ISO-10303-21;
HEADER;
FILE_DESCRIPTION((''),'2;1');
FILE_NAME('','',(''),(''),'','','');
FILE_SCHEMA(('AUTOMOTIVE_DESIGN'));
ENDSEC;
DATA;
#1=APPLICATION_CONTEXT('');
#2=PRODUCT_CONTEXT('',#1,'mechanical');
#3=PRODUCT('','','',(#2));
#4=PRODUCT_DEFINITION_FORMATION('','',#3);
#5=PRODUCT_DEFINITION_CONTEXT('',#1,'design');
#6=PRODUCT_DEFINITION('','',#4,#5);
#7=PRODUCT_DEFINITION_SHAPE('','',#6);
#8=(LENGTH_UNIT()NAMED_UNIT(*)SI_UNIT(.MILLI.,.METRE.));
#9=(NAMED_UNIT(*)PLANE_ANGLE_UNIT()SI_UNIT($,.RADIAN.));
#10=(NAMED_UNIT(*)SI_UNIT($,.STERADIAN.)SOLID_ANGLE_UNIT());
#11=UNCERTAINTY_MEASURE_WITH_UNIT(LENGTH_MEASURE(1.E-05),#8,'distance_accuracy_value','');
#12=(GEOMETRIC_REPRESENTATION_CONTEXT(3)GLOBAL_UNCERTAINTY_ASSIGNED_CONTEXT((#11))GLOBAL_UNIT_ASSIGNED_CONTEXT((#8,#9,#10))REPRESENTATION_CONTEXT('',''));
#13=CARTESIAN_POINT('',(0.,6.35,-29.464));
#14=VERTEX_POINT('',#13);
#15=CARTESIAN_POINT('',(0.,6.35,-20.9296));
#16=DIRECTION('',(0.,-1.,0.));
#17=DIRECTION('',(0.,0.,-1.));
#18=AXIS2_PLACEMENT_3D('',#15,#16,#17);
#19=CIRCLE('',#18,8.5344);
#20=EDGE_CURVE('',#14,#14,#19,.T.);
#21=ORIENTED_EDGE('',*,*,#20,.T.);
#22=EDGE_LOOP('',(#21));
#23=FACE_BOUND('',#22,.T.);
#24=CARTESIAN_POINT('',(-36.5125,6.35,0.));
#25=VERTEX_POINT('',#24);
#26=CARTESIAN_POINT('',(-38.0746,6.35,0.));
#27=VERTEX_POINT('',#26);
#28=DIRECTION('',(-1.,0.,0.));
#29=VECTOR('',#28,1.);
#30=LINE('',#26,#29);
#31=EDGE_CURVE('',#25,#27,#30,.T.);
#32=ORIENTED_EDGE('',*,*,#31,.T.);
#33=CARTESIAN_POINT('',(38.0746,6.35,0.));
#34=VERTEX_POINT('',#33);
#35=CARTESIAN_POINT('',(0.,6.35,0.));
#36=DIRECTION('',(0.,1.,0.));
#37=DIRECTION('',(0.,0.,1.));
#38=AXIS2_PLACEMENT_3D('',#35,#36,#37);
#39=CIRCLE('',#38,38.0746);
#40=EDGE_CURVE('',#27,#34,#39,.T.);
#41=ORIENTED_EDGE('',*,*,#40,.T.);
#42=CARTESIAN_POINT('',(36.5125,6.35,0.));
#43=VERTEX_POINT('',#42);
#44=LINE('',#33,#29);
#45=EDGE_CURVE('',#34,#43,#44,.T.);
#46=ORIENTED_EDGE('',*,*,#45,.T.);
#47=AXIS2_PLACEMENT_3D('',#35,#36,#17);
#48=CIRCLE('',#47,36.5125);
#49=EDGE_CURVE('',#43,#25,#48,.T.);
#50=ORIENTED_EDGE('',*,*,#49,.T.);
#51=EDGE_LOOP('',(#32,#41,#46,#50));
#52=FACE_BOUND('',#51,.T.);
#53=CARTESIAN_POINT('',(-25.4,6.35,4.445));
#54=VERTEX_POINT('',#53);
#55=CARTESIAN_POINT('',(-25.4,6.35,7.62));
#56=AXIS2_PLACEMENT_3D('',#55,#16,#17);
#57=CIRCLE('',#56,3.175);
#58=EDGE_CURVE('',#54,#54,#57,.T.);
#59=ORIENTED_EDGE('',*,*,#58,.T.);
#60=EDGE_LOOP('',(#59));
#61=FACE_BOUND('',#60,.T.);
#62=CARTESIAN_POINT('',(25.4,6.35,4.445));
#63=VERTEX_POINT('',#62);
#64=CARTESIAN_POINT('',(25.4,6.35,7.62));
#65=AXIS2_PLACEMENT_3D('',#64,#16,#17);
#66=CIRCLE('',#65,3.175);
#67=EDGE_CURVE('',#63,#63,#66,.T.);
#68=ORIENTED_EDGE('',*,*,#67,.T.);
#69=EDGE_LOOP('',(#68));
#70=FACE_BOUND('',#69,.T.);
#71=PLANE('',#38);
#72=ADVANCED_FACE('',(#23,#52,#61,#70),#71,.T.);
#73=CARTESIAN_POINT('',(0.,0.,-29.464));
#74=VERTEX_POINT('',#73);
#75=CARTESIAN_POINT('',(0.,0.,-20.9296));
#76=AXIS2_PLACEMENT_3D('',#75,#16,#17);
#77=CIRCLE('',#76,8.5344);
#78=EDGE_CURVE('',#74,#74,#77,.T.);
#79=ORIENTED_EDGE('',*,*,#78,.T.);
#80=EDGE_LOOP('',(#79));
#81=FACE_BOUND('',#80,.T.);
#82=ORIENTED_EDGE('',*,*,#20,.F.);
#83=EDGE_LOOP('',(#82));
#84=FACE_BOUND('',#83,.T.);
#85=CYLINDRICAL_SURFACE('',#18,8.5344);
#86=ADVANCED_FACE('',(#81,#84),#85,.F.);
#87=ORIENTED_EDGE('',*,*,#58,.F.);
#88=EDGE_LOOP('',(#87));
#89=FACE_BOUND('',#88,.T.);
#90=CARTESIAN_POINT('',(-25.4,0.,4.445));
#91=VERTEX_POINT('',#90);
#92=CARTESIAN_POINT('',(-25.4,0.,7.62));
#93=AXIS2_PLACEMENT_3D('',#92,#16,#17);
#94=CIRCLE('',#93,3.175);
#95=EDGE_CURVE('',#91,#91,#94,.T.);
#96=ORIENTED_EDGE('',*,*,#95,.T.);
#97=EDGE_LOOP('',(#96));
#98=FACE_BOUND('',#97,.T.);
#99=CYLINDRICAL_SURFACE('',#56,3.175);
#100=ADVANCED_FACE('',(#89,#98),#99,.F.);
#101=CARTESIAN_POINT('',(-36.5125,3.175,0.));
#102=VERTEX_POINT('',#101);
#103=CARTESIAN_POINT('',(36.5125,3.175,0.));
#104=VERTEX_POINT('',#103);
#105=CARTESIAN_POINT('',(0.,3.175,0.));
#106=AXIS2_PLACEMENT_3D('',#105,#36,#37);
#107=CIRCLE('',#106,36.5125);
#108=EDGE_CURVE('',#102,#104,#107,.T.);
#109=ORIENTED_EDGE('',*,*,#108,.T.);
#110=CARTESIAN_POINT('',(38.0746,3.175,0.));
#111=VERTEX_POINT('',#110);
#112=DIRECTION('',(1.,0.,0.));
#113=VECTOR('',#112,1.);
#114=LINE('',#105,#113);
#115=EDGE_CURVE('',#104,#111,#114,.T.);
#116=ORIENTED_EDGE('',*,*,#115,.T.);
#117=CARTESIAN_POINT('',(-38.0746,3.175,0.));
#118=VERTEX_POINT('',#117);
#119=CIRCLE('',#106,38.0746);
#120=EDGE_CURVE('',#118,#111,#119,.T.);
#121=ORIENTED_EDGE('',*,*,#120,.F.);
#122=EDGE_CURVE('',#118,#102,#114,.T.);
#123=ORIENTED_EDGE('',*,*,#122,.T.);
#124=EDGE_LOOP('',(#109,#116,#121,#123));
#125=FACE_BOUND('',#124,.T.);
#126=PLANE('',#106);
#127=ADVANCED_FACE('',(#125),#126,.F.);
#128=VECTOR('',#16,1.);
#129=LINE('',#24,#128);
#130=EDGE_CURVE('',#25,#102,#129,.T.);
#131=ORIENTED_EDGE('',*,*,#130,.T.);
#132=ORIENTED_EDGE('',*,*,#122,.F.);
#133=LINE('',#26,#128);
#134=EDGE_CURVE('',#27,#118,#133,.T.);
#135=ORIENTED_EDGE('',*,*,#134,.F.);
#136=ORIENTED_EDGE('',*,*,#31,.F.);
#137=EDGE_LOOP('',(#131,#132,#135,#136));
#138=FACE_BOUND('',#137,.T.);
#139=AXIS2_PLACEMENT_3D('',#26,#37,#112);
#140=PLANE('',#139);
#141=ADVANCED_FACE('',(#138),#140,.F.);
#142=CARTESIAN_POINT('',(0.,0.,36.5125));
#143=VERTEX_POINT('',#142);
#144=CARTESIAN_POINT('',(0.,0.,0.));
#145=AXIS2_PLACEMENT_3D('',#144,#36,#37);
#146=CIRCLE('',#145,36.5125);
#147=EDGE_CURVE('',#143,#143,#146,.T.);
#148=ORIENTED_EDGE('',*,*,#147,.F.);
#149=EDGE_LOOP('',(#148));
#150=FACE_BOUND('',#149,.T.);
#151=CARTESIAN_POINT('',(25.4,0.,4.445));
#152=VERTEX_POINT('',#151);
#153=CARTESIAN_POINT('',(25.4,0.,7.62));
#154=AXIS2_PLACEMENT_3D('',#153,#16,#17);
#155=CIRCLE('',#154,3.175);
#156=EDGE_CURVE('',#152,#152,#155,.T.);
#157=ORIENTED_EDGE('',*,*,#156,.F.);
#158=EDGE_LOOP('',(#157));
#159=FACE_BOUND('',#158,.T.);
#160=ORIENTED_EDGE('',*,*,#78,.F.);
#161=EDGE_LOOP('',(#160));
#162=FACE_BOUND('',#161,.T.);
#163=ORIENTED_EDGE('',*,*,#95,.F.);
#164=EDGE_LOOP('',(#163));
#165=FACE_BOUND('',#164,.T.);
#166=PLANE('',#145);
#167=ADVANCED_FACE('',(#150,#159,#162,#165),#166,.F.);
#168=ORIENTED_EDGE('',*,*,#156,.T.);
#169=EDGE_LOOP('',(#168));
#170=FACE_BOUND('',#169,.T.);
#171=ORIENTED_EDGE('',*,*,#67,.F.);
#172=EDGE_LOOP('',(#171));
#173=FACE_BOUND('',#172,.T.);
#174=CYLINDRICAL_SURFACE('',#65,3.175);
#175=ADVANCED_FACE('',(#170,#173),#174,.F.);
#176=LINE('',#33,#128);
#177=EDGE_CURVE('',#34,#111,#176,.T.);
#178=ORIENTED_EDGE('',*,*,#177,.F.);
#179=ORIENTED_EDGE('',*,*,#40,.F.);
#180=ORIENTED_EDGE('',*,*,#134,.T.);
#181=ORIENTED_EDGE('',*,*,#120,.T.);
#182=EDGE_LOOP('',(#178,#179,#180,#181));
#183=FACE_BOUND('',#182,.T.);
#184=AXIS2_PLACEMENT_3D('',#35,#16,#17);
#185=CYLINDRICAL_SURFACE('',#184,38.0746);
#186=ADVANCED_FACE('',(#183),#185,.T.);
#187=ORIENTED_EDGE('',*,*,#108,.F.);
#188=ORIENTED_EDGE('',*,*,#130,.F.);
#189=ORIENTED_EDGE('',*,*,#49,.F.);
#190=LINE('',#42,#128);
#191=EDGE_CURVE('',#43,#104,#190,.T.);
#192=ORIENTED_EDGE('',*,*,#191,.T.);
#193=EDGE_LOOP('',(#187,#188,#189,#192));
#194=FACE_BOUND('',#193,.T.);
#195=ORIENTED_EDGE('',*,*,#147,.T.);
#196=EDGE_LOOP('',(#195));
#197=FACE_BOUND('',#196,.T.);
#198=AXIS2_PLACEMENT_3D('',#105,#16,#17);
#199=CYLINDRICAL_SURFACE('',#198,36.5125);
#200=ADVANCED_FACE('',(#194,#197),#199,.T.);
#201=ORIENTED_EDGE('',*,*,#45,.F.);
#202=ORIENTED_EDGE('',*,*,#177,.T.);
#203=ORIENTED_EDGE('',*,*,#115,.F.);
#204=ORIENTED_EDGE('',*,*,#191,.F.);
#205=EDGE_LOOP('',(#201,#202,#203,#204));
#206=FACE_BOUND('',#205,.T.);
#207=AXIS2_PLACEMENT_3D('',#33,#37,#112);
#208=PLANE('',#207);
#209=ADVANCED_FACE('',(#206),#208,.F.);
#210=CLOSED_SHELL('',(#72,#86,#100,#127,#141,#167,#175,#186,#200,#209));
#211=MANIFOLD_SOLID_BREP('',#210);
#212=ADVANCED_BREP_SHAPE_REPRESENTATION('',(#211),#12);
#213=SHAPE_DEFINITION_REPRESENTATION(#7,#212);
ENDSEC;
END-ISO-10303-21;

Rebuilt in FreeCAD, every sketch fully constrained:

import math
import FreeCAD as App
import Part
import Sketcher
from FreeCAD import Vector
Q = App.Units.Quantity

doc = App.newDocument("Part")
params = doc.addObject("Spreadsheet::Sheet", "Params")
for row, (alias, value) in enumerate([
    ("sketch1_diameter", "2.875 in"),
    ("pad1_length", "0.125 in"),
    ("sketch2_diameter", "2.998 in"),
    ("pad2_length", "0.125 in"),
    ("sketch3_diameter", "0.4 in"),
    ("sketch4_diameter", "0.25 in"),
    ("sketch5_diameter", "0.672 in"),
    ("sketch5_radius", "1.499 in"),
    ("sketch5_radius2", "1.4375 in"),
    ("sketch6_diameter", "0.25 in"),
    ("pad3_length", "0.25 in"),
    ("sketch7_diameter", "0.25 in"),
], start=1):
    params.set(f"A{row}", alias)
    params.set(f"B{row}", "=" + value)
    params.setAlias(f"B{row}", alias)

body = doc.addObject("PartDesign::Body", "Body")

# Sketch on XZ plane
sketch1 = body.newObject("Sketcher::SketchObject", "Sketch")
sketch1.AttachmentSupport = (doc.getObject("XZ_Plane"), [""])
sketch1.MapMode = "FlatFace"
sketch1.addGeometry(Part.Circle(Vector(0, 0, 0), Vector(0, 0, 1), 37), False)
sketch1.addConstraint(Sketcher.Constraint("Coincident", 0, 3, -1, 1))
sketch1.addConstraint(Sketcher.Constraint("Diameter", 0, Q("2.875 in")))
sketch1.setExpression("Constraints[1]", "Params.sketch1_diameter")
pad1 = body.newObject("PartDesign::Pad", "Pad")
pad1.Profile = sketch1
pad1.setExpression("Length", "Params.pad1_length")
pad1.Reversed = True

# Sketch on XZ plane
sketch2 = body.newObject("Sketcher::SketchObject", "Sketch001")
sketch2.AttachmentSupport = (doc.getObject("XZ_Plane"), [""])
sketch2.MapMode = "FlatFace"
sketch2.AttachmentOffset = App.Placement(Vector(0, 0, -0.125 * 25.4), App.Rotation())
sketch2.addGeometry(Part.Circle(Vector(0, 0, 0), Vector(0, 0, 1), 38), False)
sketch2.addConstraint(Sketcher.Constraint("Coincident", 0, 3, -1, 1))
sketch2.addConstraint(Sketcher.Constraint("Diameter", 0, Q("2.998 in")))
sketch2.setExpression("Constraints[1]", "Params.sketch2_diameter")
pad2 = body.newObject("PartDesign::Pad", "Pad001")
pad2.Profile = sketch2
pad2.setExpression("Length", "Params.pad2_length")
pad2.Reversed = True

# Sketch on XZ plane
sketch3 = body.newObject("Sketcher::SketchObject", "Sketch002")
sketch3.AttachmentSupport = (doc.getObject("XZ_Plane"), [""])
sketch3.MapMode = "FlatFace"
sketch3.addGeometry(Part.Circle(Vector(0, -21, 0), Vector(0, 0, 1), 5), False)
sketch3.addConstraint(Sketcher.Constraint("PointOnObject", 0, 3, -2))
sketch3.addConstraint(Sketcher.Constraint("Diameter", 0, Q("0.4 in")))
sketch3.addConstraint(Sketcher.Constraint("DistanceY", 0, 3, -1, 1, Q("0.824 in")))
sketch3.setExpression("Constraints[1]", "Params.sketch3_diameter")
pocket1 = body.newObject("PartDesign::Pocket", "Pocket")
pocket1.Profile = sketch3
pocket1.Type = "ThroughAll"

# Sketch on XZ plane
sketch4 = body.newObject("Sketcher::SketchObject", "Sketch003")
sketch4.AttachmentSupport = (doc.getObject("XZ_Plane"), [""])
sketch4.MapMode = "FlatFace"
sketch4.AttachmentOffset = App.Placement(Vector(0, 0, -0.25 * 25.4), App.Rotation())
sketch4.addGeometry(Part.Circle(Vector(-25.4, 0, 0), Vector(0, 0, 1), 3.2), False)
sketch4.addGeometry(Part.Circle(Vector(25.4, 0, 0), Vector(0, 0, 1), 3.2), False)
sketch4.addConstraint(Sketcher.Constraint("Equal", 0, 1))
sketch4.addConstraint(Sketcher.Constraint("Symmetric", 0, 3, 1, 3, -1, 1))
sketch4.addConstraint(Sketcher.Constraint("PointOnObject", 0, 3, -1))
sketch4.addConstraint(Sketcher.Constraint("Diameter", 0, Q("0.25 in")))
sketch4.addConstraint(Sketcher.Constraint("DistanceX", 0, 3, -1, 1, Q("1 in")))
sketch4.setExpression("Constraints[3]", "Params.sketch4_diameter")
pocket2 = body.newObject("PartDesign::Pocket", "Pocket001")
pocket2.Profile = sketch4
pocket2.Type = "ThroughAll"
pocket2.Reversed = True

# Sketch on XZ plane
sketch5 = body.newObject("Sketcher::SketchObject", "Sketch004")
sketch5.AttachmentSupport = (doc.getObject("XZ_Plane"), [""])
sketch5.MapMode = "FlatFace"
sketch5.addGeometry(Part.Circle(Vector(0, -20.9, 0), Vector(0, 0, 1), 8.5), False)
sketch5.addGeometry(Part.LineSegment(Vector(-36.5, 0, 0), Vector(-38.1, 0, 0)), False)
sketch5.addGeometry(Part.ArcOfCircle(Part.Circle(Vector(0, 0, 0), Vector(0, 0, 1), 38.1), math.radians(180), math.radians(360)), False)
sketch5.addGeometry(Part.LineSegment(Vector(38.1, 0, 0), Vector(36.5, 0, 0)), False)
sketch5.addGeometry(Part.ArcOfCircle(Part.Circle(Vector(0, 0, 0), Vector(0, 0, 1), 36.5), math.radians(180), math.radians(360)), False)
sketch5.addConstraint(Sketcher.Constraint("Coincident", 1, 2, 2, 1))
sketch5.addConstraint(Sketcher.Constraint("Coincident", 2, 2, 3, 1))
sketch5.addConstraint(Sketcher.Constraint("Coincident", 3, 2, 4, 2))
sketch5.addConstraint(Sketcher.Constraint("Coincident", 4, 1, 1, 1))
sketch5.addConstraint(Sketcher.Constraint("Horizontal", 1))
sketch5.addConstraint(Sketcher.Constraint("Horizontal", 3))
sketch5.addConstraint(Sketcher.Constraint("Coincident", 2, 3, -1, 1))
sketch5.addConstraint(Sketcher.Constraint("Coincident", 4, 3, -1, 1))
sketch5.addConstraint(Sketcher.Constraint("PointOnObject", 0, 3, -2))
sketch5.addConstraint(Sketcher.Constraint("PointOnObject", 1, 2, -1))
sketch5.addConstraint(Sketcher.Constraint("PointOnObject", 2, 2, -1))
sketch5.addConstraint(Sketcher.Constraint("Diameter", 0, Q("0.672 in")))
sketch5.addConstraint(Sketcher.Constraint("Radius", 2, Q("1.499 in")))
sketch5.addConstraint(Sketcher.Constraint("Radius", 4, Q("1.4375 in")))
sketch5.addConstraint(Sketcher.Constraint("DistanceY", 0, 3, -1, 1, Q("0.824 in")))
sketch5.setExpression("Constraints[11]", "Params.sketch5_diameter")
sketch5.setExpression("Constraints[12]", "Params.sketch5_radius")
sketch5.setExpression("Constraints[13]", "Params.sketch5_radius2")
pocket3 = body.newObject("PartDesign::Pocket", "Pocket002")
pocket3.Profile = sketch5
pocket3.Type = "ThroughAll"

# Sketch on XZ plane
sketch6 = body.newObject("Sketcher::SketchObject", "Sketch005")
sketch6.AttachmentSupport = (doc.getObject("XZ_Plane"), [""])
sketch6.MapMode = "FlatFace"
sketch6.AttachmentOffset = App.Placement(Vector(0, 0, -0.25 * 25.4), App.Rotation())
sketch6.addGeometry(Part.Circle(Vector(-25.4, 0, 0), Vector(0, 0, 1), 3.2), False)
sketch6.addGeometry(Part.Circle(Vector(25.4, 0, 0), Vector(0, 0, 1), 3.2), False)
sketch6.addConstraint(Sketcher.Constraint("Equal", 0, 1))
sketch6.addConstraint(Sketcher.Constraint("Symmetric", 0, 3, 1, 3, -1, 1))
sketch6.addConstraint(Sketcher.Constraint("PointOnObject", 0, 3, -1))
sketch6.addConstraint(Sketcher.Constraint("Diameter", 0, Q("0.25 in")))
sketch6.addConstraint(Sketcher.Constraint("DistanceX", 0, 3, -1, 1, Q("1 in")))
sketch6.setExpression("Constraints[3]", "Params.sketch6_diameter")
pad3 = body.newObject("PartDesign::Pad", "Pad002")
pad3.Profile = sketch6
pad3.setExpression("Length", "Params.pad3_length")

# Sketch on XZ plane
sketch7 = body.newObject("Sketcher::SketchObject", "Sketch006")
sketch7.AttachmentSupport = (doc.getObject("XZ_Plane"), [""])
sketch7.MapMode = "FlatFace"
sketch7.addGeometry(Part.Circle(Vector(-25.4, 7.6, 0), Vector(0, 0, 1), 3.2), False)
sketch7.addGeometry(Part.Circle(Vector(25.4, 7.6, 0), Vector(0, 0, 1), 3.2), False)
sketch7.addConstraint(Sketcher.Constraint("Equal", 0, 1))
sketch7.addConstraint(Sketcher.Constraint("Symmetric", 0, 3, 1, 3, -2))
sketch7.addConstraint(Sketcher.Constraint("Diameter", 0, Q("0.25 in")))
sketch7.addConstraint(Sketcher.Constraint("DistanceX", 0, 3, -1, 1, Q("1 in")))
sketch7.addConstraint(Sketcher.Constraint("DistanceY", -1, 1, 0, 3, Q("0.3 in")))
sketch7.setExpression("Constraints[2]", "Params.sketch7_diameter")
pocket4 = body.newObject("PartDesign::Pocket", "Pocket003")
pocket4.Profile = sketch7
pocket4.Type = "ThroughAll"

doc.recompute()
